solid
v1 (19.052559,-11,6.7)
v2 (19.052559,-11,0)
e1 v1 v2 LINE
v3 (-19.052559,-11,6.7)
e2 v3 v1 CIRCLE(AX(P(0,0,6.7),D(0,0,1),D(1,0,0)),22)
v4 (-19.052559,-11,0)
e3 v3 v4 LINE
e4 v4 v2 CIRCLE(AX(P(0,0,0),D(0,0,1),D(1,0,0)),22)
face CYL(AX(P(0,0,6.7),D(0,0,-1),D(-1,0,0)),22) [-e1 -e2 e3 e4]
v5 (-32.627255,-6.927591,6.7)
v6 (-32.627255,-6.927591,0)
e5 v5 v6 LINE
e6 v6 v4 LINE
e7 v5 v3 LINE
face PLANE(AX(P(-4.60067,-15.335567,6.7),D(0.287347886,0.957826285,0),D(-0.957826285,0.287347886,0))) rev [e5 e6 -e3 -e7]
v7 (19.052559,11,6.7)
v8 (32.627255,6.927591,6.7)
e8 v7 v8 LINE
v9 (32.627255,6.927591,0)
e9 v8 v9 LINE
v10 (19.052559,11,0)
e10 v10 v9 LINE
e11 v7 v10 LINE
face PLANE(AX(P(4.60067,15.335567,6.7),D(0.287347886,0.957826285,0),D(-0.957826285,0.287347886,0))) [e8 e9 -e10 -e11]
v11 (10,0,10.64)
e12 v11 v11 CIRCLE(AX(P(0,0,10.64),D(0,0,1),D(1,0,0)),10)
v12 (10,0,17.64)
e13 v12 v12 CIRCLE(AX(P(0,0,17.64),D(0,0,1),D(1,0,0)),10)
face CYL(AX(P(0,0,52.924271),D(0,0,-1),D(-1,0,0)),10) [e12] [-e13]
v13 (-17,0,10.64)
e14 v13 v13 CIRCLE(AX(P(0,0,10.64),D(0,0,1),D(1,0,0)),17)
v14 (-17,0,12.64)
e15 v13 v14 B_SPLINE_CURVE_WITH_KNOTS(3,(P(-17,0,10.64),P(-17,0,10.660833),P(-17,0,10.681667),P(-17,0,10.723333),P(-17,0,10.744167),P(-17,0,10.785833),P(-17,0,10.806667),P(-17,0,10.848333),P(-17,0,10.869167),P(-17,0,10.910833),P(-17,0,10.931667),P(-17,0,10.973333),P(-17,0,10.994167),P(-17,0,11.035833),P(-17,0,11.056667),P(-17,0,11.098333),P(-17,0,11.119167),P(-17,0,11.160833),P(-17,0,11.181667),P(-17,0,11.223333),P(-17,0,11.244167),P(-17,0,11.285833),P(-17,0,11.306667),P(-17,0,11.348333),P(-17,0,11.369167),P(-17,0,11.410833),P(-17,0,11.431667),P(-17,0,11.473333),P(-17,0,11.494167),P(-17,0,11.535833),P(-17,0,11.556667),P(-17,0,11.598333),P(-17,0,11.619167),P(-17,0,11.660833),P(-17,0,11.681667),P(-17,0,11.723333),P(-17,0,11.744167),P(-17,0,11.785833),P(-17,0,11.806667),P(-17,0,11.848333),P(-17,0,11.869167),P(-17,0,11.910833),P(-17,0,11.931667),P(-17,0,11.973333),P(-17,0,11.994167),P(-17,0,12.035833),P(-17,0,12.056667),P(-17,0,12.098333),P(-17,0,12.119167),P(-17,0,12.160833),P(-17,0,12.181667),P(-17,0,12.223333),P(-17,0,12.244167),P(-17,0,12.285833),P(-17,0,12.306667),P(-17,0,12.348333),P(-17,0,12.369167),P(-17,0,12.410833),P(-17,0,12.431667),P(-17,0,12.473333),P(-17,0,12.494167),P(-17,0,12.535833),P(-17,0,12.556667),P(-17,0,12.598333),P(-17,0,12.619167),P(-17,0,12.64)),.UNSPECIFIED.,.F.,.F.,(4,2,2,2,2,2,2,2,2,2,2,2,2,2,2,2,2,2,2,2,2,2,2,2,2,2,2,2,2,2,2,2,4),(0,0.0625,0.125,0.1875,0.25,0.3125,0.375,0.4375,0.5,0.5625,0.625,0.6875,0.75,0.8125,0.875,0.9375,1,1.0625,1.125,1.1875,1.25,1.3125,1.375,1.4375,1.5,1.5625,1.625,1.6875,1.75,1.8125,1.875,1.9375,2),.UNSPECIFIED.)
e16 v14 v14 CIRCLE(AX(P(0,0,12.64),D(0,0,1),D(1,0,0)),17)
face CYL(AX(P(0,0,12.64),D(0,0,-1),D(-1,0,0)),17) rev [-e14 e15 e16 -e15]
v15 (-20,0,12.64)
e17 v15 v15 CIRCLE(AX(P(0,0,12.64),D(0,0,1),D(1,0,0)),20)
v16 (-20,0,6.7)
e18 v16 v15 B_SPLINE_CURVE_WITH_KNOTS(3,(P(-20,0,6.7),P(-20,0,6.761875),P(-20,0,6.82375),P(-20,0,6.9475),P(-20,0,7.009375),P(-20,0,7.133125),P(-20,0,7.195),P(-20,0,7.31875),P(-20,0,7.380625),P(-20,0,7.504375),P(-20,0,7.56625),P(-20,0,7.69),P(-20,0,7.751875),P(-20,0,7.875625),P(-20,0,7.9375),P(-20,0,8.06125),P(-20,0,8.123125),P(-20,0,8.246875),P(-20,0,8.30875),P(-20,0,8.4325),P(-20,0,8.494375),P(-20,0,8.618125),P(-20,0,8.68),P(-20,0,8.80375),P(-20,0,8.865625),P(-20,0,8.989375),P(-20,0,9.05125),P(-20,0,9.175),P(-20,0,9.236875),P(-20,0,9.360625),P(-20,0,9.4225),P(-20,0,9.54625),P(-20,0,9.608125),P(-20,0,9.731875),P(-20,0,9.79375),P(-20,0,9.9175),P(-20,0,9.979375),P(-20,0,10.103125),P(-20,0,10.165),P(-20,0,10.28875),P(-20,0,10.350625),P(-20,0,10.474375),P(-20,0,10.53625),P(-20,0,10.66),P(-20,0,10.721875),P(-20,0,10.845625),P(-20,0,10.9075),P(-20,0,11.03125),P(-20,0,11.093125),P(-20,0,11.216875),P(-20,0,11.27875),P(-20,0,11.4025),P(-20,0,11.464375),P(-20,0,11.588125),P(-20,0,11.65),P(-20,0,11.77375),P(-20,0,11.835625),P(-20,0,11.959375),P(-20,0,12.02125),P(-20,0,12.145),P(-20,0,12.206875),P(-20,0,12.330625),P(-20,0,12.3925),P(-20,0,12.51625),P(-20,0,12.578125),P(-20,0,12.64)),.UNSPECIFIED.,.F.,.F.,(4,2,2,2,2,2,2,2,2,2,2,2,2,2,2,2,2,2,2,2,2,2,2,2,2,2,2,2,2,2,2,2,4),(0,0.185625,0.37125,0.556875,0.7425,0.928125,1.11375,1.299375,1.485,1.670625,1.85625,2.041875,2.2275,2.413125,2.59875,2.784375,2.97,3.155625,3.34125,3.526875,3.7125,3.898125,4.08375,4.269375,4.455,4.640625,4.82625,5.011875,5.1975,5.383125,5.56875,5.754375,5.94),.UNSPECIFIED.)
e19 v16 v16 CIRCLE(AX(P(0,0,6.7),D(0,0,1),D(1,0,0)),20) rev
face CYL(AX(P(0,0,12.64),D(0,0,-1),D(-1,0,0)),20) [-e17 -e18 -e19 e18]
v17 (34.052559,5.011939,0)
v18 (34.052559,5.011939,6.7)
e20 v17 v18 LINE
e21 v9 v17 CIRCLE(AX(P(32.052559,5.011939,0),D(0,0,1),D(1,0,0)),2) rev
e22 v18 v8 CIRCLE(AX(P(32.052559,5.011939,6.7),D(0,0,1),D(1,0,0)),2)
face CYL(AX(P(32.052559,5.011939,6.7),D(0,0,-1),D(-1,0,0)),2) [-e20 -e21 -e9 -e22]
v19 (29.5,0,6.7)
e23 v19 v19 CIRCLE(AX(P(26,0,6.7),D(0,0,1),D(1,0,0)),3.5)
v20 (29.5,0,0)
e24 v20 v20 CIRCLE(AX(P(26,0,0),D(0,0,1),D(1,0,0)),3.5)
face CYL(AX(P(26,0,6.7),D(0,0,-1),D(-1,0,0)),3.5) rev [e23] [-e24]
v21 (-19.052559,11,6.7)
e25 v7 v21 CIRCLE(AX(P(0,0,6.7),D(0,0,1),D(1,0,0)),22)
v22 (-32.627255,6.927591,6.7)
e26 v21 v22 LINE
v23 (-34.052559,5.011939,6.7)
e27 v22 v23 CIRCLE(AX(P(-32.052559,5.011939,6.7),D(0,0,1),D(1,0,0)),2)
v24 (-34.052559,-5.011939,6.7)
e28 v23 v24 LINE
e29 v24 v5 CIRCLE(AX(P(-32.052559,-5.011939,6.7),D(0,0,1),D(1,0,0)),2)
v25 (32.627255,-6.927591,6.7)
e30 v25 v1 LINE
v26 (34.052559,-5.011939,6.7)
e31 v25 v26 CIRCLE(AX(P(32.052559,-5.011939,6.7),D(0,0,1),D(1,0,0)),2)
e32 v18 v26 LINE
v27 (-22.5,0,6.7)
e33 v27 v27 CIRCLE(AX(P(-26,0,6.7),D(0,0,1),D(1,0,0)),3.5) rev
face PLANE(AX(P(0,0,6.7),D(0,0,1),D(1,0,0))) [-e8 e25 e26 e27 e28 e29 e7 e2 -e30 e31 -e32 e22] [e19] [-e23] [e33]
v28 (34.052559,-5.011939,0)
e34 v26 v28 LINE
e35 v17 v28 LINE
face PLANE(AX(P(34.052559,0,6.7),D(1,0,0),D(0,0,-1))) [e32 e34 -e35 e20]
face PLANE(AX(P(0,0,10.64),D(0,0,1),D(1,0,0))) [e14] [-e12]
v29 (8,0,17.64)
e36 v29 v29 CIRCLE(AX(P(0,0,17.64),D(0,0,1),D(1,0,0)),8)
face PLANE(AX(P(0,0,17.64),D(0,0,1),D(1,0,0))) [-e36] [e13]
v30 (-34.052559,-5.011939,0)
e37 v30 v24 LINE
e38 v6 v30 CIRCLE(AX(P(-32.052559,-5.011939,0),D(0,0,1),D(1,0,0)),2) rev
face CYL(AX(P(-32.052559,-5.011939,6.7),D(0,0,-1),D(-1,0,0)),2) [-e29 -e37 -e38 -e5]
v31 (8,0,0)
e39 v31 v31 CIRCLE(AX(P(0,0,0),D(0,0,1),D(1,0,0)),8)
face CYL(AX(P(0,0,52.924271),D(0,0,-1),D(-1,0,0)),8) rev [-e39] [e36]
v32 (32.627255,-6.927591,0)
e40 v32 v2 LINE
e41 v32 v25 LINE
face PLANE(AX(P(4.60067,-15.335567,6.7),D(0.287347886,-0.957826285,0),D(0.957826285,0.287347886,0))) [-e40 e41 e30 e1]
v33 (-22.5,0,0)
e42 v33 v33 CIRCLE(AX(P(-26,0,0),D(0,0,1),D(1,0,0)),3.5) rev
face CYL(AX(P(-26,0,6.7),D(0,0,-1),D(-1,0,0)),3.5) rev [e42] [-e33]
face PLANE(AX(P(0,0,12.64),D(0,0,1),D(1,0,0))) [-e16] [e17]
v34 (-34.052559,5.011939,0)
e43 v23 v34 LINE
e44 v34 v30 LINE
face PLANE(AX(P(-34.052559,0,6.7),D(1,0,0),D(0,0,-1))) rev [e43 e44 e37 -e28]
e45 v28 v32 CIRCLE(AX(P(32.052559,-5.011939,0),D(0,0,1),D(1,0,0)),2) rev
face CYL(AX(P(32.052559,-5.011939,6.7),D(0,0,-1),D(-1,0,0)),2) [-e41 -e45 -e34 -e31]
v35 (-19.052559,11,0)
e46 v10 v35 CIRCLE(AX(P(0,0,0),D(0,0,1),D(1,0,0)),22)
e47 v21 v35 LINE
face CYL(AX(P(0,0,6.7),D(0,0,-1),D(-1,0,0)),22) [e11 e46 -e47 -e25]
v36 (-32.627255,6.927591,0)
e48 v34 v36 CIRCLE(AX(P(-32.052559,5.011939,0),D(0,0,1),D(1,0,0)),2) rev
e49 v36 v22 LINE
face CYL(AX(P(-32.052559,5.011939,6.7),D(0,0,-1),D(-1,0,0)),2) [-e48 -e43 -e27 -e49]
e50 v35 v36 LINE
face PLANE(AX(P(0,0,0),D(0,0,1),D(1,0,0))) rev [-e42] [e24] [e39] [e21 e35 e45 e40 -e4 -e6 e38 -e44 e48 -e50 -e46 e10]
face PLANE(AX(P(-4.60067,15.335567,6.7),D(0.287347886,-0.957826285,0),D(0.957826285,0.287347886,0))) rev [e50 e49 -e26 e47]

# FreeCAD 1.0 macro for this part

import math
import FreeCAD as App
import Part
import Sketcher

V = App.Vector
Q = App.Units.Quantity


def edges_at(feature, points):
    """Names of the edges that pass closest to the given points."""
    edges = feature.Shape.Edges
    near = lambda p: min(range(len(edges)), key=lambda i: edges[i].distToShape(Part.Vertex(*p))[0])
    return sorted({f"Edge{near(p) + 1}" for p in points})

doc = App.newDocument("Part")
body = doc.addObject("PartDesign::Body", "Body")

# Sketch on XY plane
sketch1 = body.newObject("Sketcher::SketchObject", "Sketch")
sketch1.AttachmentSupport = (doc.getObject("XY_Plane"), [""])
sketch1.MapMode = "FlatFace"
sketch1.addGeometry([
    Part.LineSegment(V(34.1, 6.5, 0), V(19.1, 11, 0)),  # 0
    Part.ArcOfCircle(Part.Circle(V(0, 0, 0), V(0, 0, 1), 22), math.radians(30), math.radians(150)),  # 1
    Part.LineSegment(V(-19.1, 11, 0), V(-34.1, 6.5, 0)),  # 2
    Part.LineSegment(V(-34.1, 6.5, 0), V(-34.1, -6.5, 0)),  # 3
    Part.LineSegment(V(-34.1, -6.5, 0), V(-19.1, -11, 0)),  # 4
    Part.ArcOfCircle(Part.Circle(V(0, 0, 0), V(0, 0, 1), 22), math.radians(-150), math.radians(-30)),  # 5
    Part.LineSegment(V(19.1, -11, 0), V(34.1, -6.5, 0)),  # 6
    Part.LineSegment(V(34.1, -6.5, 0), V(34.1, 6.5, 0)),  # 7
    Part.Circle(V(26, 0, 0), V(0, 0, 1), 3.5),  # 8
    Part.Circle(V(0, 0, 0), V(0, 0, 1), 10),  # 9
    Part.Circle(V(-26, 0, 0), V(0, 0, 1), 3.5),  # 10
], False)
sketch1.addConstraint([
    Sketcher.Constraint("Coincident", 0, 2, 1, 1),
    Sketcher.Constraint("Coincident", 1, 2, 2, 1),
    Sketcher.Constraint("Coincident", 2, 2, 3, 1),
    Sketcher.Constraint("Coincident", 3, 2, 4, 1),
    Sketcher.Constraint("Coincident", 4, 2, 5, 1),
    Sketcher.Constraint("Coincident", 5, 2, 6, 1),
    Sketcher.Constraint("Coincident", 6, 2, 7, 1),
    Sketcher.Constraint("Coincident", 7, 2, 0, 1),
    Sketcher.Constraint("Vertical", 3),
    Sketcher.Constraint("Vertical", 7),
    Sketcher.Constraint("Coincident", 1, 3, -1, 1),
    Sketcher.Constraint("Coincident", 5, 3, -1, 1),
    Sketcher.Constraint("Coincident", 9, 3, -1, 1),
    Sketcher.Constraint("Equal", 1, 5),
    Sketcher.Constraint("Equal", 8, 10),
    Sketcher.Constraint("Symmetric", 8, 3, 10, 3, -1, 1),
    Sketcher.Constraint("Symmetric", 2, 2, 6, 2, -1, 1),
    Sketcher.Constraint("PointOnObject", 8, 3, -1),
    Sketcher.Constraint("Parallel", 0, 4),
    Sketcher.Constraint("Parallel", 2, 6),
    Sketcher.Constraint("Horizontal", 0, 2, 1, 2),
    Sketcher.Constraint("Horizontal", 4, 2, 5, 2),
    Sketcher.Constraint("Horizontal", 3, 2, 6, 2),
    Sketcher.Constraint("Diameter", 8, Q("7 mm")),
    Sketcher.Constraint("Diameter", 9, Q("20 mm")),
    Sketcher.Constraint("Radius", 1, Q("22 mm")),
    Sketcher.Constraint("DistanceY", 3, 2, 3, 1, Q("13 mm")),
    Sketcher.Constraint("DistanceX", -1, 1, 8, 3, Q("26 mm")),
    Sketcher.Constraint("DistanceY", -1, 1, 0, 2, Q("11 mm")),
    Sketcher.Constraint("DistanceX", 2, 2, 1, 2, Q("15 mm")),
])
pad1 = body.newObject("PartDesign::Pad", "Pad")
pad1.Profile = sketch1
pad1.Length = 6.7

# Sketch on XY plane
sketch2 = body.newObject("Sketcher::SketchObject", "Sketch001")
sketch2.AttachmentSupport = (doc.getObject("XY_Plane"), [""])
sketch2.MapMode = "FlatFace"
sketch2.addGeometry([
    Part.Circle(V(0, 0, 0), V(0, 0, 1), 20),
    Part.Circle(V(0, 0, 0), V(0, 0, 1), 17),
], False)
sketch2.addConstraint([
    Sketcher.Constraint("Coincident", 0, 3, -1, 1),
    Sketcher.Constraint("Coincident", 1, 3, -1, 1),
    Sketcher.Constraint("Diameter", 0, Q("40 mm")),
    Sketcher.Constraint("Diameter", 1, Q("34 mm")),
])
pad2 = body.newObject("PartDesign::Pad", "Pad001")
pad2.Profile = sketch2
pad2.Length = 12.64

# Sketch on XY plane
sketch3 = body.newObject("Sketcher::SketchObject", "Sketch002")
sketch3.AttachmentSupport = (doc.getObject("XY_Plane"), [""])
sketch3.MapMode = "FlatFace"
sketch3.addGeometry([
    Part.Circle(V(0, 0, 0), V(0, 0, 1), 17),
    Part.Circle(V(0, 0, 0), V(0, 0, 1), 10),
], False)
sketch3.addConstraint([
    Sketcher.Constraint("Coincident", 0, 3, -1, 1),
    Sketcher.Constraint("Coincident", 1, 3, -1, 1),
    Sketcher.Constraint("Diameter", 0, Q("34 mm")),
    Sketcher.Constraint("Diameter", 1, Q("20 mm")),
])
pad3 = body.newObject("PartDesign::Pad", "Pad002")
pad3.Profile = sketch3
pad3.Length = 10.64

# Sketch on XY plane
sketch4 = body.newObject("Sketcher::SketchObject", "Sketch003")
sketch4.AttachmentSupport = (doc.getObject("XY_Plane"), [""])
sketch4.MapMode = "FlatFace"
sketch4.addGeometry([
    Part.Circle(V(0, 0, 0), V(0, 0, 1), 10),
    Part.Circle(V(0, 0, 0), V(0, 0, 1), 8),
], False)
sketch4.addConstraint([
    Sketcher.Constraint("Coincident", 0, 3, -1, 1),
    Sketcher.Constraint("Coincident", 1, 3, -1, 1),
    Sketcher.Constraint("Diameter", 0, Q("20 mm")),
    Sketcher.Constraint("Diameter", 1, Q("16 mm")),
])
pad4 = body.newObject("PartDesign::Pad", "Pad003")
pad4.Profile = sketch4
pad4.Length = 17.64
doc.recompute()

fillet = body.newObject("PartDesign::Fillet", "Fillet")
fillet.Base = (pad4, edges_at(pad4, [
    (-34.053, -6.5, 3.35),
    (-34.053, 6.5, 3.35),
    (34.053, 6.5, 3.35),
    (34.053, -6.5, 3.35),
]))
fillet.Radius = 2

doc.recompute()
